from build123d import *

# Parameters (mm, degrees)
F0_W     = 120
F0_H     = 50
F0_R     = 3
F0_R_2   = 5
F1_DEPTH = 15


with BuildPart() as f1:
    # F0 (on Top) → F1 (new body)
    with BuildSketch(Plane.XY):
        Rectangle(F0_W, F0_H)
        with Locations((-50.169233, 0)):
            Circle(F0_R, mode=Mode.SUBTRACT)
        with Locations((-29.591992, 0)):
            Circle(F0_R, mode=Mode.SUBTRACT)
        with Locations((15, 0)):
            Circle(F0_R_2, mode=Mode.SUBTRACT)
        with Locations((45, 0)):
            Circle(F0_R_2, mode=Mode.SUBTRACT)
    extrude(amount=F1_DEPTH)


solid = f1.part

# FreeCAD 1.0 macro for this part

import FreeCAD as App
import Part
import Sketcher
Q = App.Units.Quantity

doc = App.newDocument("Part")
body = doc.addObject("PartDesign::Body", "Body")

# Sketch on XY plane
sketch1 = body.newObject("Sketcher::SketchObject", "Sketch")
sketch1.AttachmentSupport = (doc.getObject("XY_Plane"), [""])
sketch1.MapMode = "FlatFace"
sketch1.addGeometry([
    Part.LineSegment(App.Vector(-60, 25, 0), App.Vector(-60, -25, 0)),  # 0
    Part.LineSegment(App.Vector(-60, -25, 0), App.Vector(60, -25, 0)),  # 1
    Part.LineSegment(App.Vector(60, -25, 0), App.Vector(60, 25, 0)),  # 2
    Part.LineSegment(App.Vector(60, 25, 0), App.Vector(-60, 25, 0)),  # 3
    Part.Circle(App.Vector(-50.2, 0, 0), App.Vector(0, 0, 1), 3),  # 4
    Part.Circle(App.Vector(-29.6, 0, 0), App.Vector(0, 0, 1), 3),  # 5
    Part.Circle(App.Vector(15, 0, 0), App.Vector(0, 0, 1), 5),  # 6
    Part.Circle(App.Vector(45, 0, 0), App.Vector(0, 0, 1), 5),  # 7
], False)
sketch1.addConstraint([
    Sketcher.Constraint("Coincident", 0, 2, 1, 1),
    Sketcher.Constraint("Coincident", 1, 2, 2, 1),
    Sketcher.Constraint("Coincident", 2, 2, 3, 1),
    Sketcher.Constraint("Coincident", 3, 2, 0, 1),
    Sketcher.Constraint("Vertical", 0),
    Sketcher.Constraint("Horizontal", 1),
    Sketcher.Constraint("Vertical", 2),
    Sketcher.Constraint("Horizontal", 3),
    Sketcher.Constraint("Equal", 4, 5),
    Sketcher.Constraint("Equal", 6, 7),
    Sketcher.Constraint("Symmetric", 0, 2, 2, 2, -1, 1),
    Sketcher.Constraint("PointOnObject", 4, 3, -1),
    Sketcher.Constraint("PointOnObject", 5, 3, -1),
    Sketcher.Constraint("PointOnObject", 6, 3, -1),
    Sketcher.Constraint("PointOnObject", 7, 3, -1),
    Sketcher.Constraint("Diameter", 4, Q("6 mm")),
    Sketcher.Constraint("Diameter", 6, Q("10 mm")),
    Sketcher.Constraint("DistanceX", 1, 1, 1, 2, Q("120 mm")),
    Sketcher.Constraint("DistanceY", 0, 2, 0, 1, Q("50 mm")),
    Sketcher.Constraint("DistanceX", -1, 1, 6, 3, Q("15 mm")),
    Sketcher.Constraint("DistanceX", -1, 1, 7, 3, Q("45 mm")),
    Sketcher.Constraint("DistanceX", 4, 3, 5, 3, Q("20.577241 mm")),
    Sketcher.Constraint("DistanceX", 4, 3, -1, 1, Q("50.169233 mm")),
])
pad1 = body.newObject("PartDesign::Pad", "Pad")
pad1.Profile = sketch1
pad1.Length = 15

doc.recompute()
